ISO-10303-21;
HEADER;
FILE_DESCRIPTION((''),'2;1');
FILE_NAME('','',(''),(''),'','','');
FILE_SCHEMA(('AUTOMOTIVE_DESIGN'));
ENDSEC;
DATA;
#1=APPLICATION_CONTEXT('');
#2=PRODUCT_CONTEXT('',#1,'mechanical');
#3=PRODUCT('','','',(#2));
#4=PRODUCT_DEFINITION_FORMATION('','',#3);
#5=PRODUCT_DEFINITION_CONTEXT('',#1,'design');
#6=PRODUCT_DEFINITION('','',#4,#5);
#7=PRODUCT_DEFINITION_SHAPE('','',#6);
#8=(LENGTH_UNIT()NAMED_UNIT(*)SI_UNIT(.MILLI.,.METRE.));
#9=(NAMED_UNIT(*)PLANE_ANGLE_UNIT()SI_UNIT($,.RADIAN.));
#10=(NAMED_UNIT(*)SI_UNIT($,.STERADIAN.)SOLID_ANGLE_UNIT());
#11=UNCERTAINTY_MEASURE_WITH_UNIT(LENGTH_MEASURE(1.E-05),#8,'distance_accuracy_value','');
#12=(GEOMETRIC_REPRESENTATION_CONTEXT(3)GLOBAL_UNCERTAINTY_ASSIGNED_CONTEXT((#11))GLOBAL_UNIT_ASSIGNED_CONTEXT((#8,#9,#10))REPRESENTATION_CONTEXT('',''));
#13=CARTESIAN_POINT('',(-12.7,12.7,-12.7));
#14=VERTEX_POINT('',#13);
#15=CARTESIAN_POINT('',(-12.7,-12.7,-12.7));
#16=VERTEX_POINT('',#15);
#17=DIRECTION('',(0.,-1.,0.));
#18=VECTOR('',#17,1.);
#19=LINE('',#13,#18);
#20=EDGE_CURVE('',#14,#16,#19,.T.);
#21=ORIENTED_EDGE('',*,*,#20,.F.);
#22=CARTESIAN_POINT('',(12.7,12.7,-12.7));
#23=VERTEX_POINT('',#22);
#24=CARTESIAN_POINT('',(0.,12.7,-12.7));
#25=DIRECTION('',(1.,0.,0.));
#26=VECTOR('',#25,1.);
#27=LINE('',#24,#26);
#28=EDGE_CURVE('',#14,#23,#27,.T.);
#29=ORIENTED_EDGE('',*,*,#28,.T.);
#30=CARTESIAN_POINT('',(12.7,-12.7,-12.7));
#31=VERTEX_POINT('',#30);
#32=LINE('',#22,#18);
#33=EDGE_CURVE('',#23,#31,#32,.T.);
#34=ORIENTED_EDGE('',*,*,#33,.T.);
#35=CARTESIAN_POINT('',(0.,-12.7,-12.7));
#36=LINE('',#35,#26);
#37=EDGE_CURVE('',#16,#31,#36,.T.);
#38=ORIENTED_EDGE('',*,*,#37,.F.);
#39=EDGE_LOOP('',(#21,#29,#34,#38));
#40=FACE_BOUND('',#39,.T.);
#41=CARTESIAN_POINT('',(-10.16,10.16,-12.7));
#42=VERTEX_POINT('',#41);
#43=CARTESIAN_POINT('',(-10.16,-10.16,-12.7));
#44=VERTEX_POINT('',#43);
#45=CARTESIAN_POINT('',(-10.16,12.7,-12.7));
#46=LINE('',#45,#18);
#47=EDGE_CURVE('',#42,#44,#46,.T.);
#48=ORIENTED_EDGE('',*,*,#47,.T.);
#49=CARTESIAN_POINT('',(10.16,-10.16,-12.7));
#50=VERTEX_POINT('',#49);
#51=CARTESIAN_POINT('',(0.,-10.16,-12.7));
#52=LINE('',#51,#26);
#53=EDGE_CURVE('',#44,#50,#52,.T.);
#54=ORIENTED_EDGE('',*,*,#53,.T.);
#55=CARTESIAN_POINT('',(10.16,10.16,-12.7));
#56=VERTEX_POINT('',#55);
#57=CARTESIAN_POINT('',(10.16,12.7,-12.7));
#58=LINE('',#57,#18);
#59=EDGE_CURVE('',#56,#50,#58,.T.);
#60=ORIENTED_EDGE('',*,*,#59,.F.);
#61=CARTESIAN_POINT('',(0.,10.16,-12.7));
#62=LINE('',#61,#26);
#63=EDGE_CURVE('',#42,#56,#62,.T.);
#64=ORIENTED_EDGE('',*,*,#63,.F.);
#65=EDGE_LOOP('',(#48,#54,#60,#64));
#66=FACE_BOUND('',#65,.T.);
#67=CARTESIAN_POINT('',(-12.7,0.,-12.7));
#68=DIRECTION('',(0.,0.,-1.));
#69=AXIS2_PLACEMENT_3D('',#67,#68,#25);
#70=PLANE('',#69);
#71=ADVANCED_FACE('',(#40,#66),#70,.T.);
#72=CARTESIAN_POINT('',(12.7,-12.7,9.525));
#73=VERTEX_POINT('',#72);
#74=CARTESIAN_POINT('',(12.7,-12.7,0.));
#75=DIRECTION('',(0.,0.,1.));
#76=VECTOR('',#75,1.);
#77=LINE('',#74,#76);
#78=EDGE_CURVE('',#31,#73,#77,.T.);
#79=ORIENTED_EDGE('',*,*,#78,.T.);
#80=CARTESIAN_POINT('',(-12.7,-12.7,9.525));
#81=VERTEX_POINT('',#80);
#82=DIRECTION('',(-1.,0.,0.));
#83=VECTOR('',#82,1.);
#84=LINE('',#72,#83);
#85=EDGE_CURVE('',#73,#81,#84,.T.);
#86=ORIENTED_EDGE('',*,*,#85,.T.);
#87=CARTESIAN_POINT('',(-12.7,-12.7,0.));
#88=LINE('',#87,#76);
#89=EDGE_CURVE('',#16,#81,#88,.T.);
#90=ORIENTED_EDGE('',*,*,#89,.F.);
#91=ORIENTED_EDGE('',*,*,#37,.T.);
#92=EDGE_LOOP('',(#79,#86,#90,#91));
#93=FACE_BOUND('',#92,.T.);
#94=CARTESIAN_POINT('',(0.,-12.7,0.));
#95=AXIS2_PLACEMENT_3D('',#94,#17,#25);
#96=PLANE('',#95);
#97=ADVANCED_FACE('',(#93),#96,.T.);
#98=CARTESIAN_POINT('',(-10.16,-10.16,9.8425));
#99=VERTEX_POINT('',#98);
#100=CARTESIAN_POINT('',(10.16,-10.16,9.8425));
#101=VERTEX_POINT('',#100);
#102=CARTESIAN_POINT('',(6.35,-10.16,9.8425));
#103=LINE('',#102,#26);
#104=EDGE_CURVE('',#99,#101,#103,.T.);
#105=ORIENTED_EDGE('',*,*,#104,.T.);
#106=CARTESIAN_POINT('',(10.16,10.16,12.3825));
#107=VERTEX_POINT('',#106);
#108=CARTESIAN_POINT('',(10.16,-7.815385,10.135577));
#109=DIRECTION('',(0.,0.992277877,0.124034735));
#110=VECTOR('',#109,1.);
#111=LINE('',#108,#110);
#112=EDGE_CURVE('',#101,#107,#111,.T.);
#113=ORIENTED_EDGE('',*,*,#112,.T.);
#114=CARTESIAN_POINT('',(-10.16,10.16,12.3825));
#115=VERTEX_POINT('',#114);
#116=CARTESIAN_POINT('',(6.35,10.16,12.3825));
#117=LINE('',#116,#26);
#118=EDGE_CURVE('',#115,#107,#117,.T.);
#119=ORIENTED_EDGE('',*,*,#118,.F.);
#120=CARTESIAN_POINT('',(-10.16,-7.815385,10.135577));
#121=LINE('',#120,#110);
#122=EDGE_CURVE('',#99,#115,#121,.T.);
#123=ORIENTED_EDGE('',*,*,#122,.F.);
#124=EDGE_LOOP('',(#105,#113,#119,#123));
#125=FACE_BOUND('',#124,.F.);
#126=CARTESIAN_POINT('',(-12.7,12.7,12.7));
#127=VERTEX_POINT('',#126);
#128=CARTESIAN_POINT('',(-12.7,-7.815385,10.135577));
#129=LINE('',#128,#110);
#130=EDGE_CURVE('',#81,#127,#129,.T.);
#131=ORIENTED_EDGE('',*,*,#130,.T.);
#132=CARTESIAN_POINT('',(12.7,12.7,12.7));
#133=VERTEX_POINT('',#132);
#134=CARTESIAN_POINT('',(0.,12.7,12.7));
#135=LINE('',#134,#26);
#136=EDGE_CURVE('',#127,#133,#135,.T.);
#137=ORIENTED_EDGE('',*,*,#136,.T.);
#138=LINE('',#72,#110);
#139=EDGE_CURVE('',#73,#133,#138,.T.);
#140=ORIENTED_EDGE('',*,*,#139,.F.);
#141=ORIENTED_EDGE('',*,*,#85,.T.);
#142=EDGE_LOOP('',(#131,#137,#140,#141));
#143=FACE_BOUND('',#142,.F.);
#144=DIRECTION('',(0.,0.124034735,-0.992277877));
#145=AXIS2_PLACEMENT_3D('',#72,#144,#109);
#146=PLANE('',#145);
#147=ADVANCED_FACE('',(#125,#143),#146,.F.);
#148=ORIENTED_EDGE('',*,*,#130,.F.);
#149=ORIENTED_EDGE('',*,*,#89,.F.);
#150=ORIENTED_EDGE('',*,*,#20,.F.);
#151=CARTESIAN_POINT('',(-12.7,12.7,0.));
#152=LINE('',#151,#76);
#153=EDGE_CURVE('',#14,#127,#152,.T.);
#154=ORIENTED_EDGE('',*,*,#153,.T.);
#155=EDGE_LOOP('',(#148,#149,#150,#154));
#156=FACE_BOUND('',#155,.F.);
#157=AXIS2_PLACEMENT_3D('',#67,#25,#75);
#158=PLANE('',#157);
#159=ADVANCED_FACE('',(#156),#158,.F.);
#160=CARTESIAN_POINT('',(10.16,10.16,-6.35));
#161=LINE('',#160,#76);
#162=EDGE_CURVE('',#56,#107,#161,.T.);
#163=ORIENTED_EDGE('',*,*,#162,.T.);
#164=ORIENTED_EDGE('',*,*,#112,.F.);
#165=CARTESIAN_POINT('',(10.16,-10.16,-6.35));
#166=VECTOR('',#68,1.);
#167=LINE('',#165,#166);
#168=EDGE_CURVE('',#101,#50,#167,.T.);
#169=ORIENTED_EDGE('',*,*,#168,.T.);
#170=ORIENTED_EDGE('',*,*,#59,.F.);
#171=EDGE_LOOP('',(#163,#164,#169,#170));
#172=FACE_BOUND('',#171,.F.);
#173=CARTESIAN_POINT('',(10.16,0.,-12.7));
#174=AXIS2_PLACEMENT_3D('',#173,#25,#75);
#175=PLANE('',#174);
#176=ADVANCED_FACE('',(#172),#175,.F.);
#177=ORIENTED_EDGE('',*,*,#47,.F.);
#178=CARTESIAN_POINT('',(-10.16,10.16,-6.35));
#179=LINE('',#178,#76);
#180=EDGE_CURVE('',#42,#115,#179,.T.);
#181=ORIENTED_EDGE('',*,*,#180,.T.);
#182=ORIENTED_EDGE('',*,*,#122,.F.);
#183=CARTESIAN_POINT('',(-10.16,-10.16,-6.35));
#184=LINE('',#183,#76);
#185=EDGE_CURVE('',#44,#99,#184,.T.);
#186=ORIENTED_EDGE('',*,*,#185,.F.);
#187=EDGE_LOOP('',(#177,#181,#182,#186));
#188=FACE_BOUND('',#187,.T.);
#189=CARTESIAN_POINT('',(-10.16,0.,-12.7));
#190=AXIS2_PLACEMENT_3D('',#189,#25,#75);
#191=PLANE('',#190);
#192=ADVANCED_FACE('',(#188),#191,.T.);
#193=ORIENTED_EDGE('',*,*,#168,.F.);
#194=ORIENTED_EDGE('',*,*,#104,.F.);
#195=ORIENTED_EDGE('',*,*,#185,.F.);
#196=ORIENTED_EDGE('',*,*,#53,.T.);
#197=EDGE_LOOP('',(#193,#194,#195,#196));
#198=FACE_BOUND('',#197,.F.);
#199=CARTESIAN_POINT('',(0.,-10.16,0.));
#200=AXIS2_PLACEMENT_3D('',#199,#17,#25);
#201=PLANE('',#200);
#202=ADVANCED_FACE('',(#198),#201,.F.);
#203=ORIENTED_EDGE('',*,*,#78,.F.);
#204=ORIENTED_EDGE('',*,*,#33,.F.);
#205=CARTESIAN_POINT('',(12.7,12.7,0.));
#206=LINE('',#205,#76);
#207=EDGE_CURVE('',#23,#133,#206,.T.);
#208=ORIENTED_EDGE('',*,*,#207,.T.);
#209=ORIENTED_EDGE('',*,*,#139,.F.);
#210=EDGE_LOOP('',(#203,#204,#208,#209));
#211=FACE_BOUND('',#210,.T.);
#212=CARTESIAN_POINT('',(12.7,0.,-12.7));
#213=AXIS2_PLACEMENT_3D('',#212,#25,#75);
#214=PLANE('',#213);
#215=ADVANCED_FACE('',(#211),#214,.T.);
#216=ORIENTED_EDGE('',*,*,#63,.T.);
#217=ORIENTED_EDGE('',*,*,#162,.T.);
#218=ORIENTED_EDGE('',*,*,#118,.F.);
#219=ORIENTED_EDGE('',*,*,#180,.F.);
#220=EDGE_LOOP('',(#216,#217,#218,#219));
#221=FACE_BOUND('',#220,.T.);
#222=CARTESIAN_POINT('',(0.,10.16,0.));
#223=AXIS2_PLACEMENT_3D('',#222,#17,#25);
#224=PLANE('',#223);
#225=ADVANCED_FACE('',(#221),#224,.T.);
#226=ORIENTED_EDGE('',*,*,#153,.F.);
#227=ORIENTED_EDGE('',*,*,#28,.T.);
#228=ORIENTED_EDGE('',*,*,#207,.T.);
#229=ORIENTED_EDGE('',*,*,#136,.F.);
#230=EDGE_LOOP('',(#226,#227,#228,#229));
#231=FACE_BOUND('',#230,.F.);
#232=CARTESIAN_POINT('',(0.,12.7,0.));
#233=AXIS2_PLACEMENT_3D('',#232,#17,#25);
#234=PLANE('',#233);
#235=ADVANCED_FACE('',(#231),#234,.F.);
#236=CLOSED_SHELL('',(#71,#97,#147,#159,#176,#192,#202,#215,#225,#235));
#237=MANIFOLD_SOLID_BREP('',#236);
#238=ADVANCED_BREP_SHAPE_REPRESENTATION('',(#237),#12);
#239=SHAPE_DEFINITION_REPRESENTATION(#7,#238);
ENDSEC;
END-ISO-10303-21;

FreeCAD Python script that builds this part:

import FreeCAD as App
import Part
import Sketcher
Q = App.Units.Quantity


def faces_at(feature, points):
    """Names of the faces that lie closest to the given points."""
    faces = feature.Shape.Faces
    near = lambda p: min(range(len(faces)), key=lambda i: faces[i].distToShape(Part.Vertex(*p))[0])
    return sorted({f"Face{near(p) + 1}" for p in points})


def add_polygon(sketch, points):
    """Adds a closed chain of lines whose ends are joined by coincident constraints."""
    first, n = sketch.GeometryCount, len(points)
    for a, b in zip(points, points[1:] + points[:1]):
        sketch.addGeometry(Part.LineSegment(App.Vector(*a, 0), App.Vector(*b, 0)), False)
    for i in range(n):
        sketch.addConstraint(Sketcher.Constraint("Coincident", first + i, 2, first + (i + 1) % n, 1))

doc = App.newDocument("Part")
params = doc.addObject("Spreadsheet::Sheet", "Params")
for row, (alias, value) in enumerate([
    ("sketch1_width", "1 in"),
    ("pad1_length", "1 in"),
    ("thickness_wall", "0.1 in"),
    ("sketch2_width", "1 in"),
    ("sketch2_height", "0.125 in"),
], start=1):
    params.set(f"A{row}", alias)
    params.set(f"B{row}", "=" + value)
    params.setAlias(f"B{row}", alias)

body = doc.addObject("PartDesign::Body", "Body")

# Sketch on XZ plane
sketch1 = body.newObject("Sketcher::SketchObject", "Sketch")
sketch1.AttachmentSupport = (doc.getObject("XZ_Plane"), [""])
sketch1.MapMode = "FlatFace"
add_polygon(sketch1, [(-13, 13), (-13, -13), (13, -13), (13, 13)])  # lines 0-3
sketch1.addConstraint([
    Sketcher.Constraint("Vertical", 0),
    Sketcher.Constraint("Horizontal", 1),
    Sketcher.Constraint("Vertical", 2),
    Sketcher.Constraint("Horizontal", 3),
    Sketcher.Constraint("Symmetric", 0, 2, 2, 2, -1, 1),
    Sketcher.Constraint("Equal", 3, 0),
    Sketcher.Constraint("DistanceX", 1, 1, 1, 2, Q("1 in")),
])
sketch1.setExpression("Constraints[10]", "Params.sketch1_width")
pad1 = body.newObject("PartDesign::Pad", "Pad")
pad1.Profile = sketch1
pad1.setExpression("Length", "Params.pad1_length")
pad1.Midplane = True
doc.recompute()

thickness = body.newObject("PartDesign::Thickness", "Thickness")
thickness.Base = (pad1, faces_at(pad1, [(0, 0, 12.7), (0, 0, -12.7)]))
thickness.setExpression("Value", "Params.thickness_wall")
thickness.Reversed = True
thickness.Join = "Arc"

# Sketch on YZ plane
sketch2 = body.newObject("Sketcher::SketchObject", "Sketch001")
sketch2.AttachmentSupport = (doc.getObject("YZ_Plane"), [""])
sketch2.MapMode = "FlatFace"
sketch2.AttachmentOffset = App.Placement(App.Vector(0, 0, 0.5 * 25.4), App.Rotation())
add_polygon(sketch2, [(-12.7, 12.7), (-12.7, 9.5), (12.7, 12.7)])  # lines 0-2
sketch2.addConstraint([
    Sketcher.Constraint("Vertical", 0),
    Sketcher.Constraint("Horizontal", 2),
    Sketcher.Constraint("DistanceX", 2, 2, 2, 1, Q("1 in")),
    Sketcher.Constraint("DistanceX", 0, 2, -1, 1, Q("0.5 in")),
    Sketcher.Constraint("DistanceY", -1, 1, 1, 2, Q("0.5 in")),
    Sketcher.Constraint("DistanceY", 0, 2, 0, 1, Q("0.125 in")),
])
sketch2.setExpression("Constraints[5]", "Params.sketch2_width")
sketch2.setExpression("Constraints[8]", "Params.sketch2_height")
pocket1 = body.newObject("PartDesign::Pocket", "Pocket")
pocket1.Profile = sketch2
pocket1.Type = "ThroughAll"

doc.recompute()
